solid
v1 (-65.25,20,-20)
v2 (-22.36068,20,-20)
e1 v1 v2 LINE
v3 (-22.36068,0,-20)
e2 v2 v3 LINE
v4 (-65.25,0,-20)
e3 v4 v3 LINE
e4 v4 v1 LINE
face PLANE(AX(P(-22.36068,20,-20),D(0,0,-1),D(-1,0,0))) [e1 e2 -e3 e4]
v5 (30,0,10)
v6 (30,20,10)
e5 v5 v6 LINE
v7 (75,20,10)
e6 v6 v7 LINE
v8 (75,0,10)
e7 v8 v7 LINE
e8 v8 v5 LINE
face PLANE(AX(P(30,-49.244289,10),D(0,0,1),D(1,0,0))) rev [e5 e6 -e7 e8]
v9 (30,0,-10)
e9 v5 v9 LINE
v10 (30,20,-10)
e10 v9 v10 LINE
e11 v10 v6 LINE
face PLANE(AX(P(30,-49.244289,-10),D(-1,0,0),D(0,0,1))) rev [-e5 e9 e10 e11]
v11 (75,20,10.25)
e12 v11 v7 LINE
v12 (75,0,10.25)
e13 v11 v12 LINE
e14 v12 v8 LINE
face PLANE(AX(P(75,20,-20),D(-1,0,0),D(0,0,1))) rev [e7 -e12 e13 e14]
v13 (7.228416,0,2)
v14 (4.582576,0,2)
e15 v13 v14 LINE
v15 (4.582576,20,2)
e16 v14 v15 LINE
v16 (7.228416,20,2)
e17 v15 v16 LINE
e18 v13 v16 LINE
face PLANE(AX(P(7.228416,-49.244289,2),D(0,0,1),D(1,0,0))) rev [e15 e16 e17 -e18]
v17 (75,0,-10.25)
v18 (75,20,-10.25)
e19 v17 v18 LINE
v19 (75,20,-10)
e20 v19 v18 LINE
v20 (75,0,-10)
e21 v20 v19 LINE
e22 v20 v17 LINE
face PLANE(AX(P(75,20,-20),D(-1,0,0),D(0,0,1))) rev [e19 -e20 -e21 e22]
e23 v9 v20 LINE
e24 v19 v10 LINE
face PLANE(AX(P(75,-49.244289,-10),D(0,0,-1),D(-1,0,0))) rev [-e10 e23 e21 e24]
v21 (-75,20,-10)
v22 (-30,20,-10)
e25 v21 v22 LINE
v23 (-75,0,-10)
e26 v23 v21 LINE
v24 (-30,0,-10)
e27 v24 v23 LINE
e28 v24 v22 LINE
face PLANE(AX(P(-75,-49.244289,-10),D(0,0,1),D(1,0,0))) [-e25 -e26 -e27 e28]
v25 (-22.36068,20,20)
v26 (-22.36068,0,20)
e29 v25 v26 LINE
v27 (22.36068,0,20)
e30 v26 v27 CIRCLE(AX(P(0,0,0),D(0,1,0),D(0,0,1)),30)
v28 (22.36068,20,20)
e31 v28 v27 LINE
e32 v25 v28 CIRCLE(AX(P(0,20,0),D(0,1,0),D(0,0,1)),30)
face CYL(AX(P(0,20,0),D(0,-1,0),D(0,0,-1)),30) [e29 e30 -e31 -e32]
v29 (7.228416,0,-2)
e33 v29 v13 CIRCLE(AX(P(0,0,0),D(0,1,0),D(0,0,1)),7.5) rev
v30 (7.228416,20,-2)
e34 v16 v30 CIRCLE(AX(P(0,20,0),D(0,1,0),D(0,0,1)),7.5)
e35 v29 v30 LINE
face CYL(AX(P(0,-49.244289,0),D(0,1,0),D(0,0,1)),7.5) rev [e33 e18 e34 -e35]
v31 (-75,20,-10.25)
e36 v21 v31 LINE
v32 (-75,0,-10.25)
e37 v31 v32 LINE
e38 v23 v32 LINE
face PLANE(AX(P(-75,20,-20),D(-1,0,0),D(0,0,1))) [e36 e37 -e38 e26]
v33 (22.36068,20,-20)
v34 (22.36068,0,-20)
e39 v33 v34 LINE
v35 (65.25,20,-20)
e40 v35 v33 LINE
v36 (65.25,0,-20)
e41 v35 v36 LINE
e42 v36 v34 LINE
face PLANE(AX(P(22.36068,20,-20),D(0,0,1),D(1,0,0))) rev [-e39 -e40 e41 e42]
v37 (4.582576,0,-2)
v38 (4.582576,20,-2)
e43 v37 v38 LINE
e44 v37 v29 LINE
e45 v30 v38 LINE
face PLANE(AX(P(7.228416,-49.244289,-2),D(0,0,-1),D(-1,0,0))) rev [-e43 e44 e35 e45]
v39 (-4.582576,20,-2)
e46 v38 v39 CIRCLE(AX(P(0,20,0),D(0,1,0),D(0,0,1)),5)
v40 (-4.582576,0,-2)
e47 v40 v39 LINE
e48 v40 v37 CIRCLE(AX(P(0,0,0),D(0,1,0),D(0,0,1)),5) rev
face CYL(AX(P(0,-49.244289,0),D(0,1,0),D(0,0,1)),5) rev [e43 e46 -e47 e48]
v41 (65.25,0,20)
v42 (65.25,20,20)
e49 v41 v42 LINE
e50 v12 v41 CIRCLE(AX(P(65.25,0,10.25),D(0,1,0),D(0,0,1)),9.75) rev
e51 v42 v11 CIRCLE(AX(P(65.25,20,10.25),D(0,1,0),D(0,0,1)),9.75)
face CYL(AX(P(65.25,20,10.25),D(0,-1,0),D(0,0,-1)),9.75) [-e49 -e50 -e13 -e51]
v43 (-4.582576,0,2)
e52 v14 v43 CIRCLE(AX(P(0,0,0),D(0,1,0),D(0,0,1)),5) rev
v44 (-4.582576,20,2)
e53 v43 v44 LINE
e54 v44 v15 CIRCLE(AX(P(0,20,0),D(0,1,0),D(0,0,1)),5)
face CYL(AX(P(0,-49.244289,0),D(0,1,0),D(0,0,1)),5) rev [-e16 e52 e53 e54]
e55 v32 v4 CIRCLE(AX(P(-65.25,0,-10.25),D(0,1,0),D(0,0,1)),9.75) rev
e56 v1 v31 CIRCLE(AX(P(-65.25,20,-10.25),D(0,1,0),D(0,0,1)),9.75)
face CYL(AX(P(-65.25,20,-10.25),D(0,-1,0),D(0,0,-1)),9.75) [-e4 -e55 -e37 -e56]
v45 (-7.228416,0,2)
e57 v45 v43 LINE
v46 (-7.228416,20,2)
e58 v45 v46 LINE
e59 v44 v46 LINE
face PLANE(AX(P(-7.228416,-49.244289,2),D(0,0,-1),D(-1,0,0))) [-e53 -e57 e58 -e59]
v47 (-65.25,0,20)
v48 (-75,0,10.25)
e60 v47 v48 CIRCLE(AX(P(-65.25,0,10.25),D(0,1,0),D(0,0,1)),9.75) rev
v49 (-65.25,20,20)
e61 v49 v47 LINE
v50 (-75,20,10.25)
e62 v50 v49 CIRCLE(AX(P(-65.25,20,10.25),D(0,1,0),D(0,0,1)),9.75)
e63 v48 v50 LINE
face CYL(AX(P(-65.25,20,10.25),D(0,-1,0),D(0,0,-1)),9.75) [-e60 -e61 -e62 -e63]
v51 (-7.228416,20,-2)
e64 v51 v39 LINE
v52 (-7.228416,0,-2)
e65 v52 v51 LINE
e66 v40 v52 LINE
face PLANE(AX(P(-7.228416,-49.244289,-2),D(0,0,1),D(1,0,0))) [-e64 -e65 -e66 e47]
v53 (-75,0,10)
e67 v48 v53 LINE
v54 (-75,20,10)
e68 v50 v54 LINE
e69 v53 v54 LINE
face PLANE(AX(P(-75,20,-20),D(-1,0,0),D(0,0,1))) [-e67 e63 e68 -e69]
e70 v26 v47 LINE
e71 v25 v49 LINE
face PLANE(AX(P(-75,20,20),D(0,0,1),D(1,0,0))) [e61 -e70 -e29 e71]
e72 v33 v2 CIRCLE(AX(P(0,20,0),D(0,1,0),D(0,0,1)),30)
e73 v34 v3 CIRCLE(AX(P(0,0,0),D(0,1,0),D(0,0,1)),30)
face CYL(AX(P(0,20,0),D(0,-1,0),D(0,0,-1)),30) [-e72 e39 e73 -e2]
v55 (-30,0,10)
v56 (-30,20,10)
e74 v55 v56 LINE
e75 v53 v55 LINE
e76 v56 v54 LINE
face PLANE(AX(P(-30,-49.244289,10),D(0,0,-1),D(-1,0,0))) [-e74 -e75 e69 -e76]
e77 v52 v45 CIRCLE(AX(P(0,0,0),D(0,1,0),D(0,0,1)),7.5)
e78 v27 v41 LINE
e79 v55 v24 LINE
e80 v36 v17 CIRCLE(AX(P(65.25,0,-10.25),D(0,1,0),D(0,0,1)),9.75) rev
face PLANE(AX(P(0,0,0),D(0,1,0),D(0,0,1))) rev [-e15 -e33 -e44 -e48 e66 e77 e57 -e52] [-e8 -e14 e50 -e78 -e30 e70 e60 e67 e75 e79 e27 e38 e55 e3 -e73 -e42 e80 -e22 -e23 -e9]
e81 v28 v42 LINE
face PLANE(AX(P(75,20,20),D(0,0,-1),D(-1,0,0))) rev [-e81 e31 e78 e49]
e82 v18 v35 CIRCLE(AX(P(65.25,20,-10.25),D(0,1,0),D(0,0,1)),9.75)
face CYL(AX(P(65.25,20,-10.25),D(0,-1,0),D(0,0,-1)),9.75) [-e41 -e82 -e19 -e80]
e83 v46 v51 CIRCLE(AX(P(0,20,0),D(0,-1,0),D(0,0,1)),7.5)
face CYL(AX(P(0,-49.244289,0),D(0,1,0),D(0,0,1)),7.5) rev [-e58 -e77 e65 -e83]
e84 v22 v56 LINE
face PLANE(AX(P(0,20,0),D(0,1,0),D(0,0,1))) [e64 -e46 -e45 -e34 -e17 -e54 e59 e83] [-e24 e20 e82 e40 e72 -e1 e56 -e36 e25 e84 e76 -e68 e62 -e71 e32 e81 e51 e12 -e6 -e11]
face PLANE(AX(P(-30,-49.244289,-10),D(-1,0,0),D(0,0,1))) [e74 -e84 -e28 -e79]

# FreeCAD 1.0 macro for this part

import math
import FreeCAD as App
import Part
import Sketcher
Q = App.Units.Quantity


def edges_at(feature, points):
    """Names of the edges that pass closest to the given points."""
    edges = feature.Shape.Edges
    near = lambda p: min(range(len(edges)), key=lambda i: edges[i].distToShape(Part.Vertex(*p))[0])
    return sorted({f"Edge{near(p) + 1}" for p in points})

doc = App.newDocument("Part")
body = doc.addObject("PartDesign::Body", "Body")

sketch1 = body.newObject("Sketcher::SketchObject", "Sketch")
sketch1.AttachmentSupport = (doc.getObject("XZ_Plane"), [""])
sketch1.MapMode = "FlatFace"
sketch1.addGeometry([
    Part.LineSegment(App.Vector(75, -20, 0), App.Vector(22, -20, 0)),
    Part.ArcOfCircle(Part.Circle(App.Vector(0, 0, 0), App.Vector(0, 0, 1), 30), math.radians(-90), math.radians(-42)),
    Part.LineSegment(App.Vector(0, -30, 0), App.Vector(0, 30, 0)),
    Part.ArcOfCircle(Part.Circle(App.Vector(0, 0, 0), App.Vector(0, 0, 1), 30), math.radians(42), math.radians(90)),
    Part.LineSegment(App.Vector(22, 20, 0), App.Vector(75, 20, 0)),
    Part.LineSegment(App.Vector(75, 20, 0), App.Vector(75, -20, 0)),
], False)
sketch1.addConstraint([
    Sketcher.Constraint("Coincident", 0, 2, 1, 2),
    Sketcher.Constraint("Coincident", 1, 1, 2, 1),
    Sketcher.Constraint("Coincident", 2, 2, 3, 2),
    Sketcher.Constraint("Coincident", 3, 1, 4, 1),
    Sketcher.Constraint("Coincident", 4, 2, 5, 1),
    Sketcher.Constraint("Coincident", 5, 2, 0, 1),
    Sketcher.Constraint("Horizontal", 0),
    Sketcher.Constraint("Vertical", 2),
    Sketcher.Constraint("Horizontal", 4),
    Sketcher.Constraint("Vertical", 5),
    Sketcher.Constraint("Coincident", 1, 3, -1, 1),
    Sketcher.Constraint("Coincident", 3, 3, -1, 1),
    Sketcher.Constraint("Equal", 1, 3),
    Sketcher.Constraint("PointOnObject", 1, 1, -2),
    Sketcher.Constraint("Vertical", 0, 2, 3, 1),
    Sketcher.Constraint("Radius", 1, Q("30 mm")),
    Sketcher.Constraint("DistanceY", 5, 2, 5, 1, Q("40 mm")),
    Sketcher.Constraint("DistanceX", -1, 1, 4, 2, Q("75 mm")),
])
pad1 = body.newObject("PartDesign::Pad", "Pad")
pad1.Profile = sketch1
pad1.Length = 20
pad1.Reversed = True

sketch2 = body.newObject("Sketcher::SketchObject", "Sketch001")
sketch2.AttachmentSupport = (doc.getObject("XZ_Plane"), [""])
sketch2.MapMode = "FlatFace"
sketch2.AttachmentOffset = App.Placement(App.Vector(0, 0, -20), App.Rotation())
sketch2.addGeometry([
    Part.LineSegment(App.Vector(0, -5, 0), App.Vector(0, 5, 0)),
    Part.ArcOfCircle(Part.Circle(App.Vector(0, 0, 0), App.Vector(0, 0, 1), 5), math.radians(24), math.radians(90)),
    Part.LineSegment(App.Vector(4.6, 2, 0), App.Vector(7.2, 2, 0)),
    Part.ArcOfCircle(Part.Circle(App.Vector(0, 0, 0), App.Vector(0, 0, 1), 7.5), math.radians(-15), math.radians(15)),
    Part.LineSegment(App.Vector(7.2, -2, 0), App.Vector(4.6, -2, 0)),
    Part.ArcOfCircle(Part.Circle(App.Vector(0, 0, 0), App.Vector(0, 0, 1), 5), math.radians(-90), math.radians(-24)),
    Part.LineSegment(App.Vector(30, -10, 0), App.Vector(30, 10, 0)),
    Part.LineSegment(App.Vector(30, 10, 0), App.Vector(75, 10, 0)),
    Part.LineSegment(App.Vector(75, 10, 0), App.Vector(75, -10, 0)),
    Part.LineSegment(App.Vector(75, -10, 0), App.Vector(30, -10, 0)),
], False)
sketch2.addConstraint([
    Sketcher.Constraint("Coincident", 0, 2, 1, 2),
    Sketcher.Constraint("Coincident", 1, 1, 2, 1),
    Sketcher.Constraint("Coincident", 2, 2, 3, 2),
    Sketcher.Constraint("Coincident", 3, 1, 4, 1),
    Sketcher.Constraint("Coincident", 4, 2, 5, 2),
    Sketcher.Constraint("Coincident", 5, 1, 0, 1),
    Sketcher.Constraint("Coincident", 6, 2, 7, 1),
    Sketcher.Constraint("Coincident", 7, 2, 8, 1),
    Sketcher.Constraint("Coincident", 8, 2, 9, 1),
    Sketcher.Constraint("Coincident", 9, 2, 6, 1),
    Sketcher.Constraint("Vertical", 0),
    Sketcher.Constraint("Horizontal", 2),
    Sketcher.Constraint("Horizontal", 4),
    Sketcher.Constraint("Vertical", 6),
    Sketcher.Constraint("Horizontal", 7),
    Sketcher.Constraint("Vertical", 8),
    Sketcher.Constraint("Horizontal", 9),
    Sketcher.Constraint("Coincident", 1, 3, -1, 1),
    Sketcher.Constraint("Coincident", 3, 3, -1, 1),
    Sketcher.Constraint("Coincident", 5, 3, -1, 1),
    Sketcher.Constraint("Equal", 1, 5),
    Sketcher.Constraint("PointOnObject", 0, 2, -2),
    Sketcher.Constraint("Vertical", 2, 2, 3, 1),
    Sketcher.Constraint("Radius", 1, Q("5 mm")),
    Sketcher.Constraint("Radius", 3, Q("7.5 mm")),
    Sketcher.Constraint("DistanceX", 7, 1, 7, 2, Q("45 mm")),
    Sketcher.Constraint("DistanceY", 6, 1, 6, 2, Q("20 mm")),
    Sketcher.Constraint("DistanceY", -1, 1, 1, 1, Q("2 mm")),
    Sketcher.Constraint("DistanceX", -1, 1, 6, 2, Q("30 mm")),
    Sketcher.Constraint("DistanceY", -1, 1, 6, 2, Q("10 mm")),
])
pocket1 = body.newObject("PartDesign::Pocket", "Pocket")
pocket1.Profile = sketch2
pocket1.Length = 20
pocket1.Reversed = True
doc.recompute()

fillet = body.newObject("PartDesign::Fillet", "Fillet")
fillet.Base = (pocket1, edges_at(pocket1, [(75, 10, -20), (75, 10, 20)]))
fillet.Radius = 9.75
doc.recompute()

mirrored = body.newObject("PartDesign::Mirrored", "Mirrored")
mirrored.Originals = [pad1, pocket1]
mirrored.MirrorPlane = (doc.getObject("YZ_Plane"), [""])
body.Tip = mirrored
doc.recompute()

fillet2 = body.newObject("PartDesign::Fillet", "Fillet001")
fillet2.Base = (mirrored, edges_at(mirrored, [(-75, 10, -20), (-75, 10, 20)]))
fillet2.Radius = 9.75

doc.recompute()
